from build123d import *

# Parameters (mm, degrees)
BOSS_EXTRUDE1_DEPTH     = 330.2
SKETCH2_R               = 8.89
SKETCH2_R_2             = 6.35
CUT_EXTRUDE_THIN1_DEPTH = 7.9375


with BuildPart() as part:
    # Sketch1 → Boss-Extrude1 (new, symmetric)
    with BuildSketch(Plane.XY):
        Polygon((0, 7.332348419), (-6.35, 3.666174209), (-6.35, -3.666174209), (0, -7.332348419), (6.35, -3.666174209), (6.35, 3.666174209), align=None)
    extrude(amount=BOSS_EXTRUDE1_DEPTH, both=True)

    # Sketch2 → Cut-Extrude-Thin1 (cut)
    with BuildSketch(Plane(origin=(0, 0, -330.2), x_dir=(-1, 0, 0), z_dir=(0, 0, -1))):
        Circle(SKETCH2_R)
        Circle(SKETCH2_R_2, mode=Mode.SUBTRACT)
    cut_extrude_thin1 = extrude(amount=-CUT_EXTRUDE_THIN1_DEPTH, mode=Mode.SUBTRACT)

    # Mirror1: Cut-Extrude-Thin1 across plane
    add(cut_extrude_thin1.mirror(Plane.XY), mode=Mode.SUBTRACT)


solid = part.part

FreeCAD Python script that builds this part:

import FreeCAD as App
import Part
import Sketcher
from FreeCAD import Vector
Q = App.Units.Quantity


def add_polygon(sketch, points):
    """Adds a closed chain of lines whose ends are joined by coincident constraints."""
    first, n = sketch.GeometryCount, len(points)
    for a, b in zip(points, points[1:] + points[:1]):
        sketch.addGeometry(Part.LineSegment(App.Vector(*a, 0), App.Vector(*b, 0)), False)
    for i in range(n):
        sketch.addConstraint(Sketcher.Constraint("Coincident", first + i, 2, first + (i + 1) % n, 1))

doc = App.newDocument("Part")
body = doc.addObject("PartDesign::Body", "Body")

# Sketch on XY plane
sketch1 = body.newObject("Sketcher::SketchObject", "Sketch")
sketch1.AttachmentSupport = (doc.getObject("XY_Plane"), [""])
sketch1.MapMode = "FlatFace"
add_polygon(sketch1, [(0, 7), (-6, 4), (-6, -4), (0, -7), (6, -4), (6, 4)])  # lines 0-5
sketch1.addConstraint([
    Sketcher.Constraint("Vertical", 1),
    Sketcher.Constraint("Vertical", 4),
    Sketcher.Constraint("Symmetric", 0, 2, 3, 2, -1, 1),
    Sketcher.Constraint("Symmetric", 2, 2, 5, 2, -1, 1),
    Sketcher.Constraint("PointOnObject", 2, 2, -2),
    Sketcher.Constraint("Parallel", 2, 5),
    Sketcher.Constraint("Horizontal", 1, 2, 3, 2),
    Sketcher.Constraint("Angle", 0, Q("-150 deg")),
    Sketcher.Constraint("DistanceX", 1, 2, 3, 2, Q("0.5 in")),
    Sketcher.Constraint("DistanceY", 1, 2, 1, 1, Q("7.332348 mm")),
])
pad1 = body.newObject("PartDesign::Pad", "Pad")
pad1.Profile = sketch1
pad1.Length = Q("26 in")
pad1.Midplane = True

# Sketch on XY plane
sketch2 = body.newObject("Sketcher::SketchObject", "Sketch001")
sketch2.AttachmentSupport = (doc.getObject("XY_Plane"), [""])
sketch2.MapMode = "FlatFace"
sketch2.AttachmentOffset = App.Placement(Vector(0, 0, -13 * 25.4), App.Rotation())
sketch2.addGeometry([
    Part.Circle(Vector(0, 0, 0), Vector(0, 0, 1), 9),
    Part.Circle(Vector(0, 0, 0), Vector(0, 0, 1), 6),
], False)
sketch2.addConstraint([
    Sketcher.Constraint("Coincident", 0, 3, -1, 1),
    Sketcher.Constraint("Coincident", 1, 3, -1, 1),
    Sketcher.Constraint("Diameter", 0, Q("0.7 in")),
    Sketcher.Constraint("Diameter", 1, Q("0.5 in")),
])
pocket1 = body.newObject("PartDesign::Pocket", "Pocket")
pocket1.Profile = sketch2
pocket1.Length = Q("0.3125 in")
pocket1.Reversed = True
doc.recompute()

mirrored = body.newObject("PartDesign::Mirrored", "Mirrored")
mirrored.Originals = [pocket1]
mirrored.MirrorPlane = (doc.getObject("XY_Plane"), [""])
body.Tip = mirrored

doc.recompute()
